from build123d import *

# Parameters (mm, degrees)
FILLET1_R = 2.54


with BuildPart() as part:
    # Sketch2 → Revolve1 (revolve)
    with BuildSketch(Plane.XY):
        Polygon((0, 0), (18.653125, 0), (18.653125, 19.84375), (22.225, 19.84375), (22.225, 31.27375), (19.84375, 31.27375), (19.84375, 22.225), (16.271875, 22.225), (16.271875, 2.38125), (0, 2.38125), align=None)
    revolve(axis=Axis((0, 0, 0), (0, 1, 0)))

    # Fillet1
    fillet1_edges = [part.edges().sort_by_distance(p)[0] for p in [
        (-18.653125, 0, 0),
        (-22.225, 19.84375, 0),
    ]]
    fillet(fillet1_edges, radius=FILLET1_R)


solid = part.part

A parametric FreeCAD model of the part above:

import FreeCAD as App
import Part
import Sketcher
Q = App.Units.Quantity


def edges_at(feature, points):
    """Names of the edges that pass closest to the given points."""
    edges = feature.Shape.Edges
    near = lambda p: min(range(len(edges)), key=lambda i: edges[i].distToShape(Part.Vertex(*p))[0])
    return sorted({f"Edge{near(p) + 1}" for p in points})


def add_polygon(sketch, points):
    """Adds a closed chain of lines whose ends are joined by coincident constraints."""
    first, n = sketch.GeometryCount, len(points)
    for a, b in zip(points, points[1:] + points[:1]):
        sketch.addGeometry(Part.LineSegment(App.Vector(*a, 0), App.Vector(*b, 0)), False)
    for i in range(n):
        sketch.addConstraint(Sketcher.Constraint("Coincident", first + i, 2, first + (i + 1) % n, 1))

doc = App.newDocument("Part")
body = doc.addObject("PartDesign::Body", "Body")

# Sketch on XY plane
sketch1 = doc.addObject("Sketcher::SketchObject", "Sketch")
body.addObject(sketch1)
sketch1.AttachmentSupport = (doc.XY_Plane, [""])
sketch1.MapMode = "FlatFace"
add_polygon(sketch1, [(0, 0), (18.7, 0), (18.7, 19.8), (22.2, 19.8), (22.2, 31.3), (19.8, 31.3), (19.8, 22.2), (16.3, 22.2), (16.3, 2.4), (0, 2.4)])  # lines 0-9
sketch1.addConstraint([
    Sketcher.Constraint("Horizontal", 0),
    Sketcher.Constraint("Vertical", 1),
    Sketcher.Constraint("Horizontal", 2),
    Sketcher.Constraint("Vertical", 3),
    Sketcher.Constraint("Horizontal", 4),
    Sketcher.Constraint("Vertical", 5),
    Sketcher.Constraint("Horizontal", 6),
    Sketcher.Constraint("Vertical", 7),
    Sketcher.Constraint("Horizontal", 8),
    Sketcher.Constraint("Vertical", 9),
    Sketcher.Constraint("Coincident", 9, 2, -1, 1),
    Sketcher.Constraint("Equal", 2, 6),
    Sketcher.Constraint("Equal", 1, 7),
    Sketcher.Constraint("Equal", 4, 9),
    Sketcher.Constraint("DistanceY", 3, 1, 3, 2, Q("0.45 in")),
    Sketcher.Constraint("DistanceX", 0, 1, 0, 2, Q("0.734375 in")),
    Sketcher.Constraint("DistanceX", 2, 1, 2, 2, Q("0.140625 in")),
    Sketcher.Constraint("DistanceX", 4, 2, 4, 1, Q("0.09375 in")),
    Sketcher.Constraint("DistanceY", 1, 1, 1, 2, Q("0.78125 in")),
])
revolution = doc.addObject("PartDesign::Revolution", "Revolution")
body.addObject(revolution)
revolution.Profile = sketch1
revolution.ReferenceAxis = (sketch1, ["V_Axis"])
revolution.Angle = 360
doc.recompute()

fillet = doc.addObject("PartDesign::Fillet", "Fillet")
body.addObject(fillet)
fillet.Base = (revolution, edges_at(revolution, [(-18.653, 0, 0), (-22.225, 19.844, 0)]))
fillet.Radius = Q("0.1 in")

doc.recompute()
